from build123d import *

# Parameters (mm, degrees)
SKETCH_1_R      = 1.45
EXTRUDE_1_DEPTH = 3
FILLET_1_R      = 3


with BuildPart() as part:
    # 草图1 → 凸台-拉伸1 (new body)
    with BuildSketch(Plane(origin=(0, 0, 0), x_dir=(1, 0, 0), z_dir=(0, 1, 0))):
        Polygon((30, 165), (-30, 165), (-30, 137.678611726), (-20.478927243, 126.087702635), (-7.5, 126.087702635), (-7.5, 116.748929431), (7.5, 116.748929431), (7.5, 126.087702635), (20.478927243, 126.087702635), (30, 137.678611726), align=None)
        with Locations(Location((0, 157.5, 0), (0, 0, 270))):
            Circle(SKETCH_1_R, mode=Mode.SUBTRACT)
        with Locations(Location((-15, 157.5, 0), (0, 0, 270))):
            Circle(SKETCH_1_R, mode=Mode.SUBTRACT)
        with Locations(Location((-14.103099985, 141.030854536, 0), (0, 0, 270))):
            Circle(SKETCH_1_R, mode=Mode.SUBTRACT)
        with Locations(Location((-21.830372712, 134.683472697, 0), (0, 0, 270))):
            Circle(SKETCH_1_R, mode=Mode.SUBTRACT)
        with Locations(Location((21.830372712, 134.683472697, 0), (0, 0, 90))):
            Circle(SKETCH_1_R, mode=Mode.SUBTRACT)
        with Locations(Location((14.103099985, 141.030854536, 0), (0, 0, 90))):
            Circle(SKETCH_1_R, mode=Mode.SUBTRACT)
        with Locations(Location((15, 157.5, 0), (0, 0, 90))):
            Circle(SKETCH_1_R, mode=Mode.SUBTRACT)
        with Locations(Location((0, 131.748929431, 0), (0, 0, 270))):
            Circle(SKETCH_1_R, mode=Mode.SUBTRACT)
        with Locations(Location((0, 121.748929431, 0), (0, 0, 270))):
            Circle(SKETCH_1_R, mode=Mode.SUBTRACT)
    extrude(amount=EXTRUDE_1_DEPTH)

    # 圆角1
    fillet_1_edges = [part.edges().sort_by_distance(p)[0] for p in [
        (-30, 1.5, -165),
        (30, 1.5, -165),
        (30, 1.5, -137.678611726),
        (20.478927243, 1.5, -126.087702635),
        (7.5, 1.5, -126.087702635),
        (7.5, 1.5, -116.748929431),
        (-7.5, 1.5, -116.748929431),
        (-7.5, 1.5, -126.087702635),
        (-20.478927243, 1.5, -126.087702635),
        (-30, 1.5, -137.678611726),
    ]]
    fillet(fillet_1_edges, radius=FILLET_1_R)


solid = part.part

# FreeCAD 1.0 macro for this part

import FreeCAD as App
import Part
import Sketcher


def edges_at(feature, points):
    """Names of the edges that pass closest to the given points."""
    edges = feature.Shape.Edges
    near = lambda p: min(range(len(edges)), key=lambda i: edges[i].distToShape(Part.Vertex(*p))[0])
    return sorted({f"Edge{near(p) + 1}" for p in points})


def add_polygon(sketch, points):
    """Adds a closed chain of lines whose ends are joined by coincident constraints."""
    first, n = sketch.GeometryCount, len(points)
    for a, b in zip(points, points[1:] + points[:1]):
        sketch.addGeometry(Part.LineSegment(App.Vector(*a, 0), App.Vector(*b, 0)), False)
    for i in range(n):
        sketch.addConstraint(Sketcher.Constraint("Coincident", first + i, 2, first + (i + 1) % n, 1))

doc = App.newDocument("Part")
params = doc.addObject("Spreadsheet::Sheet", "Params")
for row, (alias, value) in enumerate([
    ("sketch1_diameter", "2.9 mm"),
    ("sketch1_width", "60 mm"),
    ("sketch1_width2", "15 mm"),
    ("sketch1_length", "15 mm"),
    ("pad1_length", "3 mm"),
    ("fillet_radius", "3 mm"),
], start=1):
    params.set(f"A{row}", alias)
    params.set(f"B{row}", "=" + value)
    params.setAlias(f"B{row}", alias)

body = doc.addObject("PartDesign::Body", "Body")

# Sketch on XZ plane
sketch1 = doc.addObject("Sketcher::SketchObject", "Sketch")
body.addObject(sketch1)
sketch1.AttachmentSupport = (doc.XZ_Plane, [""])
sketch1.MapMode = "FlatFace"
add_polygon(sketch1, [(30, -165), (-30, -165), (-30, -137.7), (-20.5, -126.1), (-7.5, -126.1), (-7.5, -116.7), (7.5, -116.7), (7.5, -126.1), (20.5, -126.1), (30, -137.7)])  # lines 0-9
sketch1.addGeometry(Part.Circle(App.Vector(-21.8, -134.7, 0), App.Vector(0, 0, 1), 1.4), False)  # 10
sketch1.addGeometry(Part.Circle(App.Vector(0, -121.7, 0), App.Vector(0, 0, 1), 1.4), False)  # 11
sketch1.addGeometry(Part.Circle(App.Vector(0, -131.7, 0), App.Vector(0, 0, 1), 1.4), False)  # 12
sketch1.addGeometry(Part.Circle(App.Vector(21.8, -134.7, 0), App.Vector(0, 0, 1), 1.4), False)  # 13
sketch1.addGeometry(Part.Circle(App.Vector(-14.1, -141, 0), App.Vector(0, 0, 1), 1.4), False)  # 14
sketch1.addGeometry(Part.Circle(App.Vector(-15, -157.5, 0), App.Vector(0, 0, 1), 1.4), False)  # 15
sketch1.addGeometry(Part.Circle(App.Vector(14.1, -141, 0), App.Vector(0, 0, 1), 1.4), False)  # 16
sketch1.addGeometry(Part.Circle(App.Vector(0, -157.5, 0), App.Vector(0, 0, 1), 1.4), False)  # 17
sketch1.addGeometry(Part.Circle(App.Vector(15, -157.5, 0), App.Vector(0, 0, 1), 1.4), False)  # 18
sketch1.addConstraint(Sketcher.Constraint("Horizontal", 0))
sketch1.addConstraint(Sketcher.Constraint("Vertical", 1))
sketch1.addConstraint(Sketcher.Constraint("Horizontal", 3))
sketch1.addConstraint(Sketcher.Constraint("Vertical", 4))
sketch1.addConstraint(Sketcher.Constraint("Horizontal", 5))
sketch1.addConstraint(Sketcher.Constraint("Vertical", 6))
sketch1.addConstraint(Sketcher.Constraint("Horizontal", 7))
sketch1.addConstraint(Sketcher.Constraint("Vertical", 9))
sketch1.addConstraint(Sketcher.Constraint("Equal", 10, 11))
sketch1.addConstraint(Sketcher.Constraint("Equal", 11, 12))
sketch1.addConstraint(Sketcher.Constraint("Equal", 12, 13))
sketch1.addConstraint(Sketcher.Constraint("Equal", 13, 14))
sketch1.addConstraint(Sketcher.Constraint("Equal", 14, 15))
sketch1.addConstraint(Sketcher.Constraint("Equal", 15, 16))
sketch1.addConstraint(Sketcher.Constraint("Equal", 16, 17))
sketch1.addConstraint(Sketcher.Constraint("Equal", 17, 18))
sketch1.addConstraint(Sketcher.Constraint("Symmetric", 10, 3, 13, 3, -2))
sketch1.addConstraint(Sketcher.Constraint("Symmetric", 14, 3, 16, 3, -2))
sketch1.addConstraint(Sketcher.Constraint("Symmetric", 15, 3, 18, 3, -2))
sketch1.addConstraint(Sketcher.Constraint("Symmetric", 3, 2, 6, 2, -2))
sketch1.addConstraint(Sketcher.Constraint("Symmetric", 1, 2, 8, 2, -2))
sketch1.addConstraint(Sketcher.Constraint("PointOnObject", 11, 3, -2))
sketch1.addConstraint(Sketcher.Constraint("PointOnObject", 12, 3, -2))
sketch1.addConstraint(Sketcher.Constraint("PointOnObject", 17, 3, -2))
sketch1.addConstraint(Sketcher.Constraint("Horizontal", 15, 3, 17, 3))
sketch1.addConstraint(Sketcher.Constraint("Equal", 3, 7))
sketch1.addConstraint(Sketcher.Constraint("Diameter", 10, 2.9))
sketch1.addConstraint(Sketcher.Constraint("DistanceX", 0, 2, 0, 1, 60.0))
sketch1.addConstraint(Sketcher.Constraint("DistanceX", 5, 1, 5, 2, 15.0))
sketch1.addConstraint(Sketcher.Constraint("Distance", 2, 15.0))
sketch1.addConstraint(Sketcher.Constraint("DistanceX", 15, 3, -1, 1, 15.0))
sketch1.addConstraint(Sketcher.Constraint("DistanceY", 0, 2, -1, 1, 165.0))
sketch1.addConstraint(Sketcher.Constraint("DistanceY", 12, 3, 11, 3, 10.0))
sketch1.addConstraint(Sketcher.Constraint("DistanceY", 11, 3, 4, 2, 5.0))
sketch1.addConstraint(Sketcher.Constraint("DistanceY", 15, 3, -1, 1, 157.5))
sketch1.addConstraint(Sketcher.Constraint("DistanceY", 1, 1, 1, 2, 27.321388))
sketch1.addConstraint(Sketcher.Constraint("DistanceX", 14, 3, -1, 1, 14.1031))
sketch1.addConstraint(Sketcher.Constraint("DistanceX", 3, 1, 3, 2, 12.978927))
sketch1.addConstraint(Sketcher.Constraint("DistanceY", 4, 1, 4, 2, 9.338773))
sketch1.addConstraint(Sketcher.Constraint("DistanceY", 14, 3, 10, 3, 6.347382))
sketch1.addConstraint(Sketcher.Constraint("DistanceY", 1, 2, 10, 3, 2.995139))
sketch1.addConstraint(Sketcher.Constraint("DistanceX", 10, 3, -1, 1, 21.830373))
sketch1.setExpression("Constraints[36]", "Params.sketch1_diameter")
sketch1.setExpression("Constraints[37]", "Params.sketch1_width")
sketch1.setExpression("Constraints[38]", "Params.sketch1_width2")
sketch1.setExpression("Constraints[39]", "Params.sketch1_length")
pad1 = doc.addObject("PartDesign::Pad", "Pad")
body.addObject(pad1)
pad1.Profile = sketch1
pad1.setExpression("Length", "Params.pad1_length")
pad1.Reversed = True
doc.recompute()

fillet = doc.addObject("PartDesign::Fillet", "Fillet")
body.addObject(fillet)
fillet.Base = (pad1, edges_at(pad1, [
    (-30, 1.5, -165),
    (30, 1.5, -165),
    (30, 1.5, -137.679),
    (20.479, 1.5, -126.088),
    (7.5, 1.5, -126.088),
    (7.5, 1.5, -116.749),
    (-7.5, 1.5, -116.749),
    (-7.5, 1.5, -126.088),
    (-20.479, 1.5, -126.088),
    (-30, 1.5, -137.679),
]))
fillet.setExpression("Radius", "Params.fillet_radius")

doc.recompute()
